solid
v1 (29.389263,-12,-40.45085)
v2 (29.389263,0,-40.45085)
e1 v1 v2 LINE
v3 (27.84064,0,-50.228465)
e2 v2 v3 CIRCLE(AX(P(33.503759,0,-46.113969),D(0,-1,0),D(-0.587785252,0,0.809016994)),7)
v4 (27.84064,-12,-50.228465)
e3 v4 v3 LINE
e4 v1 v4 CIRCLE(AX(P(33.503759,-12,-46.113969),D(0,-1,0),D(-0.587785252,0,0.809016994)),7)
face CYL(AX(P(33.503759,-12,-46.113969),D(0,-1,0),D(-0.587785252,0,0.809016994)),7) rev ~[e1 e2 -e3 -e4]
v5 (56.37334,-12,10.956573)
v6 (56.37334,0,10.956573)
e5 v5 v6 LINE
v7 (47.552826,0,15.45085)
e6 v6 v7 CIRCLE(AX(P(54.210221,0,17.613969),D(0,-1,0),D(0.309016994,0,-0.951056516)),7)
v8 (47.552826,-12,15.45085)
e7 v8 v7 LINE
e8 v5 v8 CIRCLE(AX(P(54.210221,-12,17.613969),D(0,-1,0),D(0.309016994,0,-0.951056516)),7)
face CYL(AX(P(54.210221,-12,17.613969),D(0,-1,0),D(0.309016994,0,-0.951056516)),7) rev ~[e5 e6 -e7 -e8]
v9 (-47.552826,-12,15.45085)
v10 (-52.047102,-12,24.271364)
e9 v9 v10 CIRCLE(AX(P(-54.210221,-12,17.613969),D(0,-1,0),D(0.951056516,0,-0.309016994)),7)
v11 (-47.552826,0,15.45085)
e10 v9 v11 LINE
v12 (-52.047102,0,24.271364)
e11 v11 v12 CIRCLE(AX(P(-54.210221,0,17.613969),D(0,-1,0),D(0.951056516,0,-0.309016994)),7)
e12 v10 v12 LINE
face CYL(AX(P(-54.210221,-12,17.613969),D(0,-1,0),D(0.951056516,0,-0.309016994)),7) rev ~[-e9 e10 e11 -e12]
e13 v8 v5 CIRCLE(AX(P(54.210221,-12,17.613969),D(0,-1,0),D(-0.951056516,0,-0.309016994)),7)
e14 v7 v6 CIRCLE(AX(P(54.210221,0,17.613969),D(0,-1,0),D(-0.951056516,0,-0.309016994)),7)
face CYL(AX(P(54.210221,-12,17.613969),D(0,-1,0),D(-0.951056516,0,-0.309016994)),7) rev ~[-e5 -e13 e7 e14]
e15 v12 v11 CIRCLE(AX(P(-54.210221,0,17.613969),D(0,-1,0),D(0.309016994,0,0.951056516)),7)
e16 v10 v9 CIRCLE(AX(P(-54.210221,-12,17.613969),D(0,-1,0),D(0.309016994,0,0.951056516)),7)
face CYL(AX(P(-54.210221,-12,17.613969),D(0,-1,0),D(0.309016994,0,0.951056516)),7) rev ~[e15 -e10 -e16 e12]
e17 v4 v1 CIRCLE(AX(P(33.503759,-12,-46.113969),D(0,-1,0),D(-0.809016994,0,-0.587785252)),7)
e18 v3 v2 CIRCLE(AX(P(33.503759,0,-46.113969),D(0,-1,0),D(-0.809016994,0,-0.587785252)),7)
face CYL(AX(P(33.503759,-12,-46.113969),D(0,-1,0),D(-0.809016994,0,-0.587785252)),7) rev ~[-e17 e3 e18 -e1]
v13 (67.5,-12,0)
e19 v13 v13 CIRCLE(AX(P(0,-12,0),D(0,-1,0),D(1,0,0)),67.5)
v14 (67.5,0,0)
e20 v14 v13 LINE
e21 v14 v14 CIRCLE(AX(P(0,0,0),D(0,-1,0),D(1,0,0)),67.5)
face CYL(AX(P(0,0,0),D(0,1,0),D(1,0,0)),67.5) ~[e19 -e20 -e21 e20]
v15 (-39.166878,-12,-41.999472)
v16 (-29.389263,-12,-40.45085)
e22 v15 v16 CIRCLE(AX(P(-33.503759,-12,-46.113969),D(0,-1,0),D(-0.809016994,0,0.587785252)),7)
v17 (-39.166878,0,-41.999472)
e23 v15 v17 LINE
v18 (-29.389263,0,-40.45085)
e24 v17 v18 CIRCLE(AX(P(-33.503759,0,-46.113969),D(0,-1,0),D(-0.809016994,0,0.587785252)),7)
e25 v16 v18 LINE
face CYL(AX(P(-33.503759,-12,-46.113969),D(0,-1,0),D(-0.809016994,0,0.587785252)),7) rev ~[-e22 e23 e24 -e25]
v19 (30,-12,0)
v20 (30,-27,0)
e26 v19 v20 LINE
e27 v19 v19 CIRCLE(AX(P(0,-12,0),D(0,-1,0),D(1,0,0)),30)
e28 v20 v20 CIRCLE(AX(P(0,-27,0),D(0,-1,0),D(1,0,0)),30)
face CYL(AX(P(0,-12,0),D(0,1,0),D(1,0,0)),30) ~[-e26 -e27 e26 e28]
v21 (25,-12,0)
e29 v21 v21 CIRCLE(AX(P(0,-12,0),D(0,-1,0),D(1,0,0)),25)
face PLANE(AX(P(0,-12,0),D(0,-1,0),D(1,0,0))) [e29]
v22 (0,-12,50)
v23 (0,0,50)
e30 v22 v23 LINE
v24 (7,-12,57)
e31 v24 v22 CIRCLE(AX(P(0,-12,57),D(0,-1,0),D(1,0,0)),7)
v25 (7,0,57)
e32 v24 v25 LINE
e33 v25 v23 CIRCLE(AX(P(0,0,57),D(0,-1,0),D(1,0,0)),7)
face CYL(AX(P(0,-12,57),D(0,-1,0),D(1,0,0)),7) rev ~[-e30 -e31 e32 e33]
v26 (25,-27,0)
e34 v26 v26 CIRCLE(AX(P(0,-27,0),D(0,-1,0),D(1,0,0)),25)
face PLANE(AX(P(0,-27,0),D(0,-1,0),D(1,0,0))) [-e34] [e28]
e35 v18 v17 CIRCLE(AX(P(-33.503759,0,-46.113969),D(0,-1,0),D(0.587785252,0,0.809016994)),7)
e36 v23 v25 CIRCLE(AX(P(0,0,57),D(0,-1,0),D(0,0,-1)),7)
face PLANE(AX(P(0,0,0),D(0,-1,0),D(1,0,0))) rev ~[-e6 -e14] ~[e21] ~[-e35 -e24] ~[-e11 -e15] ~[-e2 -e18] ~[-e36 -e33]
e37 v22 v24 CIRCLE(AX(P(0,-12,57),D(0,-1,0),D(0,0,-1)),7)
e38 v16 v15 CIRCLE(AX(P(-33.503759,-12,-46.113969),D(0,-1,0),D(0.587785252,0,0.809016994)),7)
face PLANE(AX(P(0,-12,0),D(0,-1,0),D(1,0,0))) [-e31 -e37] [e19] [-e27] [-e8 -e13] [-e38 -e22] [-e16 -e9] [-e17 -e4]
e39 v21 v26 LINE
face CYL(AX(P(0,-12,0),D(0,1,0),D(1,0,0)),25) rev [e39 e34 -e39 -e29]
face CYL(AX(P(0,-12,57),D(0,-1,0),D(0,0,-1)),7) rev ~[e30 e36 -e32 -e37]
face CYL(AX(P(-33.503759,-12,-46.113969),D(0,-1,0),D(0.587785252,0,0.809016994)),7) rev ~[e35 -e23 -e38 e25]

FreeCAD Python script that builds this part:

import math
import FreeCAD as App
import Part
import Sketcher
Q = App.Units.Quantity

doc = App.newDocument("Part")
body = doc.addObject("PartDesign::Body", "Body")

# Sketch on XZ plane
sketch1 = body.newObject("Sketcher::SketchObject", "Sketch")
sketch1.AttachmentSupport = (doc.getObject("XZ_Plane"), [""])
sketch1.MapMode = "FlatFace"
sketch1.addGeometry(Part.Circle(App.Vector(0, 0, 0), App.Vector(0, 0, 1), 68), False)
sketch1.addConstraint(Sketcher.Constraint("Coincident", 0, 3, -1, 1))
sketch1.addConstraint(Sketcher.Constraint("Diameter", 0, Q("135 mm")))
pad1 = body.newObject("PartDesign::Pad", "Pad")
pad1.Profile = sketch1
pad1.Length = 12

# Sketch on XZ plane
sketch2 = body.newObject("Sketcher::SketchObject", "Sketch001")
sketch2.AttachmentSupport = (doc.getObject("XZ_Plane"), [""])
sketch2.MapMode = "FlatFace"
sketch2.AttachmentOffset = App.Placement(App.Vector(0, 0, 12), App.Rotation())
sketch2.addGeometry(Part.Circle(App.Vector(0, 0, 0), App.Vector(0, 0, 1), 30), False)
sketch2.addGeometry(Part.Circle(App.Vector(0, 0, 0), App.Vector(0, 0, 1), 25), False)
sketch2.addConstraint(Sketcher.Constraint("Coincident", 0, 3, -1, 1))
sketch2.addConstraint(Sketcher.Constraint("Coincident", 1, 3, -1, 1))
sketch2.addConstraint(Sketcher.Constraint("Diameter", 0, Q("60 mm")))
sketch2.addConstraint(Sketcher.Constraint("Diameter", 1, Q("50 mm")))
pad2 = body.newObject("PartDesign::Pad", "Pad001")
pad2.Profile = sketch2
pad2.Length = 15

# Sketch on XZ plane
sketch3 = body.newObject("Sketcher::SketchObject", "Sketch002")
sketch3.AttachmentSupport = (doc.getObject("XZ_Plane"), [""])
sketch3.MapMode = "FlatFace"
sketch3.AttachmentOffset = App.Placement(App.Vector(0, 0, 12), App.Rotation())
sketch3.addGeometry(Part.ArcOfCircle(Part.Circle(App.Vector(0, 57, 0), App.Vector(0, 0, 1), 7), math.radians(-90), math.radians(0)), False)
sketch3.addGeometry(Part.ArcOfCircle(Part.Circle(App.Vector(0, 57, 0), App.Vector(0, 0, 1), 7), math.radians(0), math.radians(270)), False)
sketch3.addConstraint(Sketcher.Constraint("Tangent", 0, 1, 1, 2))
sketch3.addConstraint(Sketcher.Constraint("Coincident", 1, 1, 0, 2))
sketch3.addConstraint(Sketcher.Constraint("PointOnObject", 0, 3, -2))
sketch3.addConstraint(Sketcher.Constraint("PointOnObject", 0, 1, -2))
sketch3.addConstraint(Sketcher.Constraint("Horizontal", 0, 3, 1, 1))
sketch3.addConstraint(Sketcher.Constraint("Radius", 0, Q("7 mm")))
sketch3.addConstraint(Sketcher.Constraint("DistanceY", -1, 1, 0, 3, Q("57 mm")))
pocket1 = body.newObject("PartDesign::Pocket", "Pocket")
pocket1.Profile = sketch3
pocket1.Length = 15
doc.recompute()

polarpattern = body.newObject("PartDesign::PolarPattern", "PolarPattern")
polarpattern.Originals = [pocket1]
polarpattern.Axis = (doc.getObject("Y_Axis"), [""])
polarpattern.Angle = 360
polarpattern.Occurrences = 5
body.Tip = polarpattern

doc.recompute()
